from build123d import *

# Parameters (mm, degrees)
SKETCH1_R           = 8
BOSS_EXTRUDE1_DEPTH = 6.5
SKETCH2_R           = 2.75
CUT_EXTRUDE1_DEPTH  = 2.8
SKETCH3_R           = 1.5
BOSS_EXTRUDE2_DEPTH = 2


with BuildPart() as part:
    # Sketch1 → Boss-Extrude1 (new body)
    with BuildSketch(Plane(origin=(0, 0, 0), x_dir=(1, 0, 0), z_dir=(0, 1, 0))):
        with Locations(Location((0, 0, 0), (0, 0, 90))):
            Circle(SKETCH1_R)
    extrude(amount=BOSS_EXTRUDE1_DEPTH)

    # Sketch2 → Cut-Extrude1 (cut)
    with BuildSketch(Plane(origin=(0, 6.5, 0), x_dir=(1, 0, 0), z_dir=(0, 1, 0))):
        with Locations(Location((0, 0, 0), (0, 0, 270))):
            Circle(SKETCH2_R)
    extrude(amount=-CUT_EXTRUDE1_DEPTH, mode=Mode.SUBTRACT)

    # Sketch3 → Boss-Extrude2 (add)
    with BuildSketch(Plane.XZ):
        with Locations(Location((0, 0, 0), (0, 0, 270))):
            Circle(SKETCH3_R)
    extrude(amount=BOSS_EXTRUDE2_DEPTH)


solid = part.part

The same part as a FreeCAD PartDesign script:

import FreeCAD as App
import Part
import Sketcher
from FreeCAD import Vector
Q = App.Units.Quantity

doc = App.newDocument("Part")
body = doc.addObject("PartDesign::Body", "Body")

sketch1 = body.newObject("Sketcher::SketchObject", "Sketch")
sketch1.AttachmentSupport = (doc.getObject("XZ_Plane"), [""])
sketch1.MapMode = "FlatFace"
sketch1.addGeometry(Part.Circle(Vector(0, 0, 0), Vector(0, 0, 1), 8), False)
sketch1.addConstraint(Sketcher.Constraint("Coincident", 0, 3, -1, 1))
sketch1.addConstraint(Sketcher.Constraint("Diameter", 0, Q("16 mm")))
pad1 = body.newObject("PartDesign::Pad", "Pad")
pad1.Profile = sketch1
pad1.Length = 6.5
pad1.Reversed = True

sketch2 = body.newObject("Sketcher::SketchObject", "Sketch001")
sketch2.AttachmentSupport = (doc.getObject("XZ_Plane"), [""])
sketch2.MapMode = "FlatFace"
sketch2.AttachmentOffset = App.Placement(Vector(0, 0, -6.5), App.Rotation())
sketch2.addGeometry(Part.Circle(Vector(0, 0, 0), Vector(0, 0, 1), 2.8), False)
sketch2.addConstraint(Sketcher.Constraint("Coincident", 0, 3, -1, 1))
sketch2.addConstraint(Sketcher.Constraint("Diameter", 0, Q("5.5 mm")))
pocket1 = body.newObject("PartDesign::Pocket", "Pocket")
pocket1.Profile = sketch2
pocket1.Length = 2.8
pocket1.Reversed = True

sketch3 = body.newObject("Sketcher::SketchObject", "Sketch002")
sketch3.AttachmentSupport = (doc.getObject("XZ_Plane"), [""])
sketch3.MapMode = "FlatFace"
sketch3.addGeometry(Part.Circle(Vector(0, 0, 0), Vector(0, 0, 1), 1.5), False)
sketch3.addConstraint(Sketcher.Constraint("Coincident", 0, 3, -1, 1))
sketch3.addConstraint(Sketcher.Constraint("Diameter", 0, Q("3 mm")))
pad2 = body.newObject("PartDesign::Pad", "Pad001")
pad2.Profile = sketch3
pad2.Length = 2

doc.recompute()
